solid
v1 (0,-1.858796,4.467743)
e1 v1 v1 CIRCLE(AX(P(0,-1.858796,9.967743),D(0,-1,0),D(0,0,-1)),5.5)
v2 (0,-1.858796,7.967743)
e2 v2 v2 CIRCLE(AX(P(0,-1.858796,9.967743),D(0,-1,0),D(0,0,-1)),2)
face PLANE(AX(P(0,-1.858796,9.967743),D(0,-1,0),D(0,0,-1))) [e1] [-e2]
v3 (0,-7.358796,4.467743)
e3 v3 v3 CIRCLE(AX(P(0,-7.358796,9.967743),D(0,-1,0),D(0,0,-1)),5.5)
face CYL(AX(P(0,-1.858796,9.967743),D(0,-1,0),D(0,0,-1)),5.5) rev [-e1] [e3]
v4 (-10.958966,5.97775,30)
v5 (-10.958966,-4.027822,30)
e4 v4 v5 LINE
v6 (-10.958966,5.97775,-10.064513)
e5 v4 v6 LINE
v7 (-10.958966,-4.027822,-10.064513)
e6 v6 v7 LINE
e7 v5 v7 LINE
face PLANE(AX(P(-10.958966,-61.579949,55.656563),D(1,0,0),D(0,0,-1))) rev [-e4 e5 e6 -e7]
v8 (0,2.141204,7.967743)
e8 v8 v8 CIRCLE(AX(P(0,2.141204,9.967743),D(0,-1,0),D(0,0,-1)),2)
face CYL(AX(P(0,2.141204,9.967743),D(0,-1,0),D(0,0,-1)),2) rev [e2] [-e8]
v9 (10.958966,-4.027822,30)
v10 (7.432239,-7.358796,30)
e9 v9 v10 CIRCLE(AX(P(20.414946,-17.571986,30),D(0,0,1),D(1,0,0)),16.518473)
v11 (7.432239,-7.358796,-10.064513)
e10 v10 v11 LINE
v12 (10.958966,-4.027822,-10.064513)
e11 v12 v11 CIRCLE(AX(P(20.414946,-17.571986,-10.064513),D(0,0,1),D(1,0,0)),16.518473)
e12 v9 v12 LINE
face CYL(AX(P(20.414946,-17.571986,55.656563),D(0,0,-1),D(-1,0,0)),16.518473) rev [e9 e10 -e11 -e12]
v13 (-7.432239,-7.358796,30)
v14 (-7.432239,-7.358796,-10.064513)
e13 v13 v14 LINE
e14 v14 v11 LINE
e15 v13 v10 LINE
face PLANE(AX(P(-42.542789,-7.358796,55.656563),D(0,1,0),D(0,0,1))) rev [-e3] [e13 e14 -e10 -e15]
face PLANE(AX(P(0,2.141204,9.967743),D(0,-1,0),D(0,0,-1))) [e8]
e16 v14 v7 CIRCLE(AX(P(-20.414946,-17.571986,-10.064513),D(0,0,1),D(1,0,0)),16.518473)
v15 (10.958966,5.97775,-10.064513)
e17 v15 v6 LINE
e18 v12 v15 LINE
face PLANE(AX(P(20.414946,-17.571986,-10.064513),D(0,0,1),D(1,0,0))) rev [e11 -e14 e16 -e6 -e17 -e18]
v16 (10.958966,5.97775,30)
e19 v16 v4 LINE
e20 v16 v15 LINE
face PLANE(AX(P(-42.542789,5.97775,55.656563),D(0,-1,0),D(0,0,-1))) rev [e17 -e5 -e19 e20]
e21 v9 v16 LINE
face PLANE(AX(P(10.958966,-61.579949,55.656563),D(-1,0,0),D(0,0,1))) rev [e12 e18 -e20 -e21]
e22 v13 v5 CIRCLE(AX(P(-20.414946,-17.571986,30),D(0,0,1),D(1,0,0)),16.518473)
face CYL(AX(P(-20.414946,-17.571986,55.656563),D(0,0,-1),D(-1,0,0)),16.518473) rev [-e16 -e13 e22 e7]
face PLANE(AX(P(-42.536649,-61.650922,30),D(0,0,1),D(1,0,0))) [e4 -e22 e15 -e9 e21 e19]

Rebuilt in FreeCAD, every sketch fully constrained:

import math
import FreeCAD as App
import Part
import Sketcher

V = App.Vector

doc = App.newDocument("Part")
body = doc.addObject("PartDesign::Body", "Body")

sketch1 = body.newObject("Sketcher::SketchObject", "Sketch")
sketch1.AttachmentSupport = (doc.getObject("XY_Plane"), [""])
sketch1.MapMode = "FlatFace"
sketch1.AttachmentOffset = App.Placement(V(0, 0, -10.064513), App.Rotation())
sketch1.addGeometry([
    Part.LineSegment(V(11, 6, 0), V(-11, 6, 0)),
    Part.LineSegment(V(-11, 6, 0), V(-11, -4, 0)),
    Part.ArcOfCircle(Part.Circle(V(-20.4, -17.6, 0), V(0, 0, 1), 16.5), math.radians(38.19), math.radians(55.08)),
    Part.LineSegment(V(-7.4, -7.4, 0), V(7.4, -7.4, 0)),
    Part.ArcOfCircle(Part.Circle(V(20.4, -17.6, 0), V(0, 0, 1), 16.5), math.radians(124.92), math.radians(141.81)),
    Part.LineSegment(V(11, -4, 0), V(11, 6, 0)),
], False)
sketch1.addConstraint([
    Sketcher.Constraint("Coincident", 0, 2, 1, 1),
    Sketcher.Constraint("Coincident", 1, 2, 2, 2),
    Sketcher.Constraint("Coincident", 2, 1, 3, 1),
    Sketcher.Constraint("Coincident", 3, 2, 4, 2),
    Sketcher.Constraint("Coincident", 4, 1, 5, 1),
    Sketcher.Constraint("Coincident", 5, 2, 0, 1),
    Sketcher.Constraint("Horizontal", 0),
    Sketcher.Constraint("Vertical", 1),
    Sketcher.Constraint("Horizontal", 3),
    Sketcher.Constraint("Vertical", 5),
    Sketcher.Constraint("Equal", 2, 4),
    Sketcher.Constraint("Symmetric", 2, 3, 4, 3, -2),
    Sketcher.Constraint("Horizontal", 1, 2, 4, 1),
    Sketcher.Constraint("Radius", 2, 16.518473),
    Sketcher.Constraint("DistanceY", 1, 2, 1, 1, 10.005572),
    Sketcher.Constraint("DistanceX", 0, 2, 0, 1, 21.917933),
    Sketcher.Constraint("DistanceX", 3, 1, 3, 2, 14.864477),
    Sketcher.Constraint("DistanceY", -1, 1, 0, 2, 5.97775),
    Sketcher.Constraint("DistanceX", 2, 3, 4, 3, 40.829892),
])
pad1 = body.newObject("PartDesign::Pad", "Pad")
pad1.Profile = sketch1
pad1.Length = 40.064513

sketch2 = body.newObject("Sketcher::SketchObject", "Sketch001")
sketch2.AttachmentSupport = (doc.getObject("XZ_Plane"), [""])
sketch2.MapMode = "FlatFace"
sketch2.AttachmentOffset = App.Placement(V(0, 0, 7.358796), App.Rotation())
sketch2.addGeometry(Part.Circle(V(0, 10, 0), V(0, 0, 1), 5), False)
sketch2.addConstraint([
    Sketcher.Constraint("PointOnObject", 0, 3, -2),
    Sketcher.Constraint("Diameter", 0, 11.0),
    Sketcher.Constraint("DistanceY", -1, 1, 0, 3, 9.967743),
])
pocket1 = body.newObject("PartDesign::Pocket", "Pocket")
pocket1.Profile = sketch2
pocket1.Length = 5.5

sketch3 = body.newObject("Sketcher::SketchObject", "Sketch002")
sketch3.AttachmentSupport = (doc.getObject("XZ_Plane"), [""])
sketch3.MapMode = "FlatFace"
sketch3.AttachmentOffset = App.Placement(V(0, 0, 1.858796), App.Rotation())
sketch3.addGeometry(Part.Circle(V(0, 10, 0), V(0, 0, 1), 2), False)
sketch3.addConstraint([
    Sketcher.Constraint("PointOnObject", 0, 3, -2),
    Sketcher.Constraint("Diameter", 0, 4.0),
    Sketcher.Constraint("DistanceY", -1, 1, 0, 3, 9.967743),
])
pocket2 = body.newObject("PartDesign::Pocket", "Pocket001")
pocket2.Profile = sketch3
pocket2.Length = 4

doc.recompute()
